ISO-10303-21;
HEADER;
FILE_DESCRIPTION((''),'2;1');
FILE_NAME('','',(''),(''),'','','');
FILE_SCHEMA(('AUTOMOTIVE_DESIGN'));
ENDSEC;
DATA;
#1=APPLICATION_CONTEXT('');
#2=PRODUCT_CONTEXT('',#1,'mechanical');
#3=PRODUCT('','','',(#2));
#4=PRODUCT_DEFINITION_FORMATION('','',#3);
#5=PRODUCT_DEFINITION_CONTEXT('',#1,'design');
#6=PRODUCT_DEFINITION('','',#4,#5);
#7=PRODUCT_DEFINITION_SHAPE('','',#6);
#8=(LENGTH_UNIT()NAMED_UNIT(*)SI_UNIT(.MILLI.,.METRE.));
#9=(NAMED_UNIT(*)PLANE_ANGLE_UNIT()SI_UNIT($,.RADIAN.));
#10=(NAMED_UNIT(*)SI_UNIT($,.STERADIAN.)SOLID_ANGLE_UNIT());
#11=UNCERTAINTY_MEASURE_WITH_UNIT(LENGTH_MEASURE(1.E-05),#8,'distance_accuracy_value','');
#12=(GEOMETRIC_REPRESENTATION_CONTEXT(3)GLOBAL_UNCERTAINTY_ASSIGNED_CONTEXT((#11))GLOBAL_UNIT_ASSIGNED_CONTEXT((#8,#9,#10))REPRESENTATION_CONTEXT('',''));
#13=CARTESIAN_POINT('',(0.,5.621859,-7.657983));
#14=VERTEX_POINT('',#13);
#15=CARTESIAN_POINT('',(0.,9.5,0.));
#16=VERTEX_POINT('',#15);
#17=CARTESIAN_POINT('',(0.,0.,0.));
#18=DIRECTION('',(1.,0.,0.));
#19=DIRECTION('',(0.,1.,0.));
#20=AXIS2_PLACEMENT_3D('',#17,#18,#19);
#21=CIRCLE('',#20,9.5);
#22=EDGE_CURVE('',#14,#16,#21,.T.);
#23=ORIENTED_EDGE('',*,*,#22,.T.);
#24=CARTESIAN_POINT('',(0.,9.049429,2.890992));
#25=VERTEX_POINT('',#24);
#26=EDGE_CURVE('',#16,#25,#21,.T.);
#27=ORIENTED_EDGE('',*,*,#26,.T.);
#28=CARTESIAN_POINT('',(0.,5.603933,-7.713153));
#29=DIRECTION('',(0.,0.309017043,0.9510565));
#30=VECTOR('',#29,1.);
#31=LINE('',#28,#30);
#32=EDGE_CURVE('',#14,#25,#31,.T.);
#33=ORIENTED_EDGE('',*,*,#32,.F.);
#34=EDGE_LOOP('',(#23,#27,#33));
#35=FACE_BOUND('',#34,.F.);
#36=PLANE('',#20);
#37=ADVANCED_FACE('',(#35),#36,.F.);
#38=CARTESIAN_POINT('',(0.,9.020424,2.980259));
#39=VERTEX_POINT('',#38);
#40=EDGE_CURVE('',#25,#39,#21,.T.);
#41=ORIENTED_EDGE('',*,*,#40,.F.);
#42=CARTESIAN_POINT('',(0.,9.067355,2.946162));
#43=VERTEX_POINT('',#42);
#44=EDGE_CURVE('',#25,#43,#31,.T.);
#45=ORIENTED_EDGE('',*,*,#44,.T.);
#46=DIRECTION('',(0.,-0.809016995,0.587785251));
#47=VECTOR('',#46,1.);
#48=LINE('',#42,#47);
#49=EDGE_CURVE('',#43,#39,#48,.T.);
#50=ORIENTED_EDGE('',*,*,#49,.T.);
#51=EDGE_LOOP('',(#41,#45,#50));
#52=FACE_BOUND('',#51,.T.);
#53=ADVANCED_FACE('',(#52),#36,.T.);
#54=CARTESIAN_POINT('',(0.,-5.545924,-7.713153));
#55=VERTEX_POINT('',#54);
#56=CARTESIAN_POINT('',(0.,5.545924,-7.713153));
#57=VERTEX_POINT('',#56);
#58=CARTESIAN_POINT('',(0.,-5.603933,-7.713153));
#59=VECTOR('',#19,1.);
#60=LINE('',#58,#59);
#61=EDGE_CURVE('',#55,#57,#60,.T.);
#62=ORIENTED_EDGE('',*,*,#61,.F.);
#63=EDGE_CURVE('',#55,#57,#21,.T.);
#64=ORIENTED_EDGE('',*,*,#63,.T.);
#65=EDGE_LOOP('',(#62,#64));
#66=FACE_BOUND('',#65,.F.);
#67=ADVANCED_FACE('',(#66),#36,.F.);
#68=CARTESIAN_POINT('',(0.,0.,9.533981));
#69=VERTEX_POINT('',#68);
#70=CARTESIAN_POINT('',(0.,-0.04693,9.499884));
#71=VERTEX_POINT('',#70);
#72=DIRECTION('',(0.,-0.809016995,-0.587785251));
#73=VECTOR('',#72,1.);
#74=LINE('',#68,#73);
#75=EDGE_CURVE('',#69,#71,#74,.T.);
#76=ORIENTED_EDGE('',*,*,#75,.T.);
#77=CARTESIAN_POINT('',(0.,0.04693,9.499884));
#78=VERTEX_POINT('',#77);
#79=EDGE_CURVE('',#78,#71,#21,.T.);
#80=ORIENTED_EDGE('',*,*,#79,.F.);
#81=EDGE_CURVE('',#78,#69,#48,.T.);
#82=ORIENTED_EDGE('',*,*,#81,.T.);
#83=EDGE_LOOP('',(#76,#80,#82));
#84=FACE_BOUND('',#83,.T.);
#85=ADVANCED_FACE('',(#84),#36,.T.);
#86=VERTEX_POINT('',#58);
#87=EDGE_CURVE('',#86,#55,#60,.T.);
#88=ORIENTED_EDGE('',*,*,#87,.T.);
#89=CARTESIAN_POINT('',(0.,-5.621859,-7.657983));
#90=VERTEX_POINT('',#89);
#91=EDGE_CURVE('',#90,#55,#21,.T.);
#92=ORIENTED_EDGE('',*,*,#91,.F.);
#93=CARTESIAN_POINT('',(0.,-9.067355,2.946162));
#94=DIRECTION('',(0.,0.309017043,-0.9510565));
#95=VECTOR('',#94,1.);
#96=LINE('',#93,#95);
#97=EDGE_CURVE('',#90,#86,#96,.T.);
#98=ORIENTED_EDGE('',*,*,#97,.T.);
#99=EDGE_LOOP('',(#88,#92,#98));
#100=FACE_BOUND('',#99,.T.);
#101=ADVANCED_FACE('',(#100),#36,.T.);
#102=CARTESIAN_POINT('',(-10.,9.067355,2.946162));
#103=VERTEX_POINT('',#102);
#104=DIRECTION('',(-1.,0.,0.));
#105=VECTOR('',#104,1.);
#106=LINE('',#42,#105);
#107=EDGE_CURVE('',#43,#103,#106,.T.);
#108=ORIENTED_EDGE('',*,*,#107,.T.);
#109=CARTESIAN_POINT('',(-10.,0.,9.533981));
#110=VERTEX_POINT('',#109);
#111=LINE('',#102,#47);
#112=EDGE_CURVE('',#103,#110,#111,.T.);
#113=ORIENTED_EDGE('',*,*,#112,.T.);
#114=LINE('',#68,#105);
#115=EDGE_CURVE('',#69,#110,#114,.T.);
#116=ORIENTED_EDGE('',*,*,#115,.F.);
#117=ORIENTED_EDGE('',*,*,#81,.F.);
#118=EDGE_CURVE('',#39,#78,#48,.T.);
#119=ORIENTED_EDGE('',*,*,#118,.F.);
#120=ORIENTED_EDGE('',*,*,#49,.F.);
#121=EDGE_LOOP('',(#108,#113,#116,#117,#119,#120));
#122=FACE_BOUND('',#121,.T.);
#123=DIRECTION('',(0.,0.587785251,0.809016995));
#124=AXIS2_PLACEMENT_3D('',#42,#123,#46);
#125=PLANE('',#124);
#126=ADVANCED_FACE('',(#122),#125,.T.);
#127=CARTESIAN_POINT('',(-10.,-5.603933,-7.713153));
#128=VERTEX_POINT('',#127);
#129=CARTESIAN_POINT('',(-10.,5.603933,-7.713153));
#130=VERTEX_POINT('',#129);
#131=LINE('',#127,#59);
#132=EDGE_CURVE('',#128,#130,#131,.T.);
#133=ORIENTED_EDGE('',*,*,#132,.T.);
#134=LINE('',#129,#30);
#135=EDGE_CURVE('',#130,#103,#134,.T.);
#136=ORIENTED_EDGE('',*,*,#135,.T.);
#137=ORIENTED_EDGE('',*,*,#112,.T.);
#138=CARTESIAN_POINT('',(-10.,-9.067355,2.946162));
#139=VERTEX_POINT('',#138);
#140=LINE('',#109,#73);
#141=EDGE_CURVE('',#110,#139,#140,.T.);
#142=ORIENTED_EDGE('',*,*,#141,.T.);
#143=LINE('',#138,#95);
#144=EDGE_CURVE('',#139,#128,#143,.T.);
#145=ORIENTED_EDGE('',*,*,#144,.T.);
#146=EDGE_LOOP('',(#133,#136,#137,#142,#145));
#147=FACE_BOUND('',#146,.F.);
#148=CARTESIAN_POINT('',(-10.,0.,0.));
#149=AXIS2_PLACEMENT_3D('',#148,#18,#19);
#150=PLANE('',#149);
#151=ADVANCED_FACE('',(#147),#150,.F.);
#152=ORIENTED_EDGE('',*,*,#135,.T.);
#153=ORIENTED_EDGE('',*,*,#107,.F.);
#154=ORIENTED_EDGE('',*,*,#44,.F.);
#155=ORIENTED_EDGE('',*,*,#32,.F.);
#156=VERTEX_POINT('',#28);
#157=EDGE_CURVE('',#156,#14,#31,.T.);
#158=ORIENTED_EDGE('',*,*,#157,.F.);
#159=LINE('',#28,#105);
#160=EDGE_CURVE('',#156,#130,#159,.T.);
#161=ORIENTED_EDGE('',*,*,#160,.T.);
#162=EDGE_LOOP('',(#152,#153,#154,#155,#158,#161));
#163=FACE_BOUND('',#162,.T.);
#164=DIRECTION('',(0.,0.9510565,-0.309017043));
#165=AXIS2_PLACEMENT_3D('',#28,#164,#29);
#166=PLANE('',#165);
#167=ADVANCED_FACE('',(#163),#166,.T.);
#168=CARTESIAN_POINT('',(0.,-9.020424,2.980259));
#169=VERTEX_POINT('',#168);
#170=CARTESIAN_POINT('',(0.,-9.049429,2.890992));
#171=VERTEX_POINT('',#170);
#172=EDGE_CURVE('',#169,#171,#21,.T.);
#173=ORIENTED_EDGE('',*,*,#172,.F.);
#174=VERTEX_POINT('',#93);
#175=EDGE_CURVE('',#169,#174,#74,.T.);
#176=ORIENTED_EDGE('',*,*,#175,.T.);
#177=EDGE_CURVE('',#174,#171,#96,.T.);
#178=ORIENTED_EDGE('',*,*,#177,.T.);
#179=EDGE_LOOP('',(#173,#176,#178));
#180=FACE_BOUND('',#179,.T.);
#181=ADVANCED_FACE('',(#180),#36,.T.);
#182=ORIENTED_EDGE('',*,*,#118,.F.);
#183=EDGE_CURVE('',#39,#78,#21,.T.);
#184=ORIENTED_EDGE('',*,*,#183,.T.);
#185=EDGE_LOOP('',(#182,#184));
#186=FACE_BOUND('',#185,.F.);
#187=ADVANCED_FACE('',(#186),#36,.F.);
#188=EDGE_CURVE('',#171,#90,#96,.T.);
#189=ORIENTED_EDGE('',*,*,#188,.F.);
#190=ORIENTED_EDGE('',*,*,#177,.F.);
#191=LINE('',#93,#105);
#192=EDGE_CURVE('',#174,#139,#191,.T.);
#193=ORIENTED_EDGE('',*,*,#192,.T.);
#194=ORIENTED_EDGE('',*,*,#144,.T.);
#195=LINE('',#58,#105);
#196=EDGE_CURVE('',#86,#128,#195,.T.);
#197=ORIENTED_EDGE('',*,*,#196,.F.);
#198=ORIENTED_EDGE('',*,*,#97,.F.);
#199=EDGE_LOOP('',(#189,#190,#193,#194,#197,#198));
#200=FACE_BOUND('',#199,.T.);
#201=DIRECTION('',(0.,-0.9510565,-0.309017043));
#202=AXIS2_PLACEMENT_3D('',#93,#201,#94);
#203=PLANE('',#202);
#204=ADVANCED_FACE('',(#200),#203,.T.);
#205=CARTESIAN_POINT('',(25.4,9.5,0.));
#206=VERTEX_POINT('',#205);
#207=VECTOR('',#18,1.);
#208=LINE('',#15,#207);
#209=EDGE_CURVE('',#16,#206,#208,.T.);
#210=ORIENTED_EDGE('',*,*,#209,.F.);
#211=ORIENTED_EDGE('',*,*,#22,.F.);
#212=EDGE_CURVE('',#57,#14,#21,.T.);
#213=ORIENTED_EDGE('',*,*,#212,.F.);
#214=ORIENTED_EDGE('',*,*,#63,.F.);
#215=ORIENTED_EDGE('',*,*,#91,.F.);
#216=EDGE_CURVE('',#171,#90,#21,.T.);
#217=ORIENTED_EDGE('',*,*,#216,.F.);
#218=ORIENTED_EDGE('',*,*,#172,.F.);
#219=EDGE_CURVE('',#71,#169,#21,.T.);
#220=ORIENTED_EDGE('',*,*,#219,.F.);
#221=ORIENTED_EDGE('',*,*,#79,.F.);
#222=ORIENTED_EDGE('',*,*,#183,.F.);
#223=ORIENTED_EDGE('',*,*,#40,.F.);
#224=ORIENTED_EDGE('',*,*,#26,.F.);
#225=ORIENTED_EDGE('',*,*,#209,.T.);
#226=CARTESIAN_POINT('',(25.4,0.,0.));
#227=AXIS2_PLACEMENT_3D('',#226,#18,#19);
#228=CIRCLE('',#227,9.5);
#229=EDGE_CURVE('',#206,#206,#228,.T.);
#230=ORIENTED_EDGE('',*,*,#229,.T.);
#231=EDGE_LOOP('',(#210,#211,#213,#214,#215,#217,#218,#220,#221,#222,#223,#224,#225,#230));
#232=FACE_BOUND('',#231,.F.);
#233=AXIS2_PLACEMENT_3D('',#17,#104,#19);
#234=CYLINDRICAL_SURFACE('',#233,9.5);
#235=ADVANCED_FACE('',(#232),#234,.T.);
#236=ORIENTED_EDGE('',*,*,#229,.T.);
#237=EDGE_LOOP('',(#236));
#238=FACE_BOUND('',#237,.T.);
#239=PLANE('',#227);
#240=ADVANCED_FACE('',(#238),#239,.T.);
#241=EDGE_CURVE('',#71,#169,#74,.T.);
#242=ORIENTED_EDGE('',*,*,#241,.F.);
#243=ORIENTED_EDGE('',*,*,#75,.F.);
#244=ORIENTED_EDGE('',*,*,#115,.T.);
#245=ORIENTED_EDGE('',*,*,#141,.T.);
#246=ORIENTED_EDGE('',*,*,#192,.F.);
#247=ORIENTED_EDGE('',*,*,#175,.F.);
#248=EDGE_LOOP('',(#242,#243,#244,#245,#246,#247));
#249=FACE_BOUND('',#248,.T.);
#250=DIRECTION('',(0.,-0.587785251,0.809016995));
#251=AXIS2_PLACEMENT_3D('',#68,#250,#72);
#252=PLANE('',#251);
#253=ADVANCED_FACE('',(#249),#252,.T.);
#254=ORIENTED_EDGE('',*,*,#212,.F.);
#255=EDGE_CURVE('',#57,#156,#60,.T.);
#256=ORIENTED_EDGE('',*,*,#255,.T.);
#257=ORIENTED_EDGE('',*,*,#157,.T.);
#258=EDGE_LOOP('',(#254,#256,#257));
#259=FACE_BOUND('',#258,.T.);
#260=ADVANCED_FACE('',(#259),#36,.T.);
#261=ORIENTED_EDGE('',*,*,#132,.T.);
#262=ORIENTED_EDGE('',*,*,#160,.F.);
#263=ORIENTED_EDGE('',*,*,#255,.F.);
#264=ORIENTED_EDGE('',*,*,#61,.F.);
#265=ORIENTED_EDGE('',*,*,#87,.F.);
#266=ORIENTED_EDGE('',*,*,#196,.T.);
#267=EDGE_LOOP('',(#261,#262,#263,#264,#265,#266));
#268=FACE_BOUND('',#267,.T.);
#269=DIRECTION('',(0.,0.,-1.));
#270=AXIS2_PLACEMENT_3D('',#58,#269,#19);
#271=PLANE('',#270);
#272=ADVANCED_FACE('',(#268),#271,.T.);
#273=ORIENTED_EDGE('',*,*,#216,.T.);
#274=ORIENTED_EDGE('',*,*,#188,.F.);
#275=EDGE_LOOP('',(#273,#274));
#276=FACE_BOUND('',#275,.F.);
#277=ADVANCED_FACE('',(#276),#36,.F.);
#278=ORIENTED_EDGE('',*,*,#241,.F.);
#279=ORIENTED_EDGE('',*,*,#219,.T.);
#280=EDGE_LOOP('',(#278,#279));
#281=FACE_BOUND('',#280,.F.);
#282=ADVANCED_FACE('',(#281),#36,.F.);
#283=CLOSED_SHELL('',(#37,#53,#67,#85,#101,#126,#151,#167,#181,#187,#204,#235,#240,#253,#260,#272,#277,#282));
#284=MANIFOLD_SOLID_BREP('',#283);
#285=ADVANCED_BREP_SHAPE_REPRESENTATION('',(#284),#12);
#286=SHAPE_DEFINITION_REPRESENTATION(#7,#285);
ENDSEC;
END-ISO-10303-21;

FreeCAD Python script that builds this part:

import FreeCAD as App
import Part
import Sketcher
Q = App.Units.Quantity


def add_polygon(sketch, points):
    """Adds a closed chain of lines whose ends are joined by coincident constraints."""
    first, n = sketch.GeometryCount, len(points)
    for a, b in zip(points, points[1:] + points[:1]):
        sketch.addGeometry(Part.LineSegment(App.Vector(*a, 0), App.Vector(*b, 0)), False)
    for i in range(n):
        sketch.addConstraint(Sketcher.Constraint("Coincident", first + i, 2, first + (i + 1) % n, 1))

doc = App.newDocument("Part")
params = doc.addObject("Spreadsheet::Sheet", "Params")
for row, (alias, value) in enumerate([
    ("sketch1_diameter", "19 mm"),
    ("pad1_length", "25.4 mm"),
    ("pad2_length", "10 mm"),
], start=1):
    params.set(f"A{row}", alias)
    params.set(f"B{row}", "=" + value)
    params.setAlias(f"B{row}", alias)

body = doc.addObject("PartDesign::Body", "Body")

sketch1 = doc.addObject("Sketcher::SketchObject", "Sketch")
body.addObject(sketch1)
sketch1.AttachmentSupport = (doc.YZ_Plane, [""])
sketch1.MapMode = "FlatFace"
sketch1.addGeometry(Part.Circle(App.Vector(0, 0, 0), App.Vector(0, 0, 1), 10), False)
sketch1.addConstraint([
    Sketcher.Constraint("Coincident", 0, 3, -1, 1),
    Sketcher.Constraint("Diameter", 0, 19.0),
])
sketch1.setExpression("Constraints[1]", "Params.sketch1_diameter")
pad1 = doc.addObject("PartDesign::Pad", "Pad")
body.addObject(pad1)
pad1.Profile = sketch1
pad1.setExpression("Length", "Params.pad1_length")

sketch2 = doc.addObject("Sketcher::SketchObject", "Sketch001")
body.addObject(sketch2)
sketch2.AttachmentSupport = (doc.YZ_Plane, [""])
sketch2.MapMode = "FlatFace"
add_polygon(sketch2, [(9, 3), (0, 10), (-9, 3), (-6, -8), (6, -8)])
sketch2.addConstraint([
    Sketcher.Constraint("Horizontal", 3),
    Sketcher.Constraint("Symmetric", 1, 2, 4, 2, -2),
    Sketcher.Constraint("PointOnObject", 0, 2, -2),
    Sketcher.Constraint("Equal", 1, 2),
    Sketcher.Constraint("Equal", 2, 4),
    Sketcher.Constraint("Angle", 0, Q("144 deg")),
    Sketcher.Constraint("Angle", 2, Q("-71.999997 deg")),
    Sketcher.Constraint("DistanceX", 3, 1, 3, 2, 11.207866),
    Sketcher.Constraint("DistanceY", -1, 1, 0, 2, 9.533981),
])
pad2 = doc.addObject("PartDesign::Pad", "Pad001")
body.addObject(pad2)
pad2.Profile = sketch2
pad2.setExpression("Length", "Params.pad2_length")
pad2.Reversed = True

doc.recompute()
